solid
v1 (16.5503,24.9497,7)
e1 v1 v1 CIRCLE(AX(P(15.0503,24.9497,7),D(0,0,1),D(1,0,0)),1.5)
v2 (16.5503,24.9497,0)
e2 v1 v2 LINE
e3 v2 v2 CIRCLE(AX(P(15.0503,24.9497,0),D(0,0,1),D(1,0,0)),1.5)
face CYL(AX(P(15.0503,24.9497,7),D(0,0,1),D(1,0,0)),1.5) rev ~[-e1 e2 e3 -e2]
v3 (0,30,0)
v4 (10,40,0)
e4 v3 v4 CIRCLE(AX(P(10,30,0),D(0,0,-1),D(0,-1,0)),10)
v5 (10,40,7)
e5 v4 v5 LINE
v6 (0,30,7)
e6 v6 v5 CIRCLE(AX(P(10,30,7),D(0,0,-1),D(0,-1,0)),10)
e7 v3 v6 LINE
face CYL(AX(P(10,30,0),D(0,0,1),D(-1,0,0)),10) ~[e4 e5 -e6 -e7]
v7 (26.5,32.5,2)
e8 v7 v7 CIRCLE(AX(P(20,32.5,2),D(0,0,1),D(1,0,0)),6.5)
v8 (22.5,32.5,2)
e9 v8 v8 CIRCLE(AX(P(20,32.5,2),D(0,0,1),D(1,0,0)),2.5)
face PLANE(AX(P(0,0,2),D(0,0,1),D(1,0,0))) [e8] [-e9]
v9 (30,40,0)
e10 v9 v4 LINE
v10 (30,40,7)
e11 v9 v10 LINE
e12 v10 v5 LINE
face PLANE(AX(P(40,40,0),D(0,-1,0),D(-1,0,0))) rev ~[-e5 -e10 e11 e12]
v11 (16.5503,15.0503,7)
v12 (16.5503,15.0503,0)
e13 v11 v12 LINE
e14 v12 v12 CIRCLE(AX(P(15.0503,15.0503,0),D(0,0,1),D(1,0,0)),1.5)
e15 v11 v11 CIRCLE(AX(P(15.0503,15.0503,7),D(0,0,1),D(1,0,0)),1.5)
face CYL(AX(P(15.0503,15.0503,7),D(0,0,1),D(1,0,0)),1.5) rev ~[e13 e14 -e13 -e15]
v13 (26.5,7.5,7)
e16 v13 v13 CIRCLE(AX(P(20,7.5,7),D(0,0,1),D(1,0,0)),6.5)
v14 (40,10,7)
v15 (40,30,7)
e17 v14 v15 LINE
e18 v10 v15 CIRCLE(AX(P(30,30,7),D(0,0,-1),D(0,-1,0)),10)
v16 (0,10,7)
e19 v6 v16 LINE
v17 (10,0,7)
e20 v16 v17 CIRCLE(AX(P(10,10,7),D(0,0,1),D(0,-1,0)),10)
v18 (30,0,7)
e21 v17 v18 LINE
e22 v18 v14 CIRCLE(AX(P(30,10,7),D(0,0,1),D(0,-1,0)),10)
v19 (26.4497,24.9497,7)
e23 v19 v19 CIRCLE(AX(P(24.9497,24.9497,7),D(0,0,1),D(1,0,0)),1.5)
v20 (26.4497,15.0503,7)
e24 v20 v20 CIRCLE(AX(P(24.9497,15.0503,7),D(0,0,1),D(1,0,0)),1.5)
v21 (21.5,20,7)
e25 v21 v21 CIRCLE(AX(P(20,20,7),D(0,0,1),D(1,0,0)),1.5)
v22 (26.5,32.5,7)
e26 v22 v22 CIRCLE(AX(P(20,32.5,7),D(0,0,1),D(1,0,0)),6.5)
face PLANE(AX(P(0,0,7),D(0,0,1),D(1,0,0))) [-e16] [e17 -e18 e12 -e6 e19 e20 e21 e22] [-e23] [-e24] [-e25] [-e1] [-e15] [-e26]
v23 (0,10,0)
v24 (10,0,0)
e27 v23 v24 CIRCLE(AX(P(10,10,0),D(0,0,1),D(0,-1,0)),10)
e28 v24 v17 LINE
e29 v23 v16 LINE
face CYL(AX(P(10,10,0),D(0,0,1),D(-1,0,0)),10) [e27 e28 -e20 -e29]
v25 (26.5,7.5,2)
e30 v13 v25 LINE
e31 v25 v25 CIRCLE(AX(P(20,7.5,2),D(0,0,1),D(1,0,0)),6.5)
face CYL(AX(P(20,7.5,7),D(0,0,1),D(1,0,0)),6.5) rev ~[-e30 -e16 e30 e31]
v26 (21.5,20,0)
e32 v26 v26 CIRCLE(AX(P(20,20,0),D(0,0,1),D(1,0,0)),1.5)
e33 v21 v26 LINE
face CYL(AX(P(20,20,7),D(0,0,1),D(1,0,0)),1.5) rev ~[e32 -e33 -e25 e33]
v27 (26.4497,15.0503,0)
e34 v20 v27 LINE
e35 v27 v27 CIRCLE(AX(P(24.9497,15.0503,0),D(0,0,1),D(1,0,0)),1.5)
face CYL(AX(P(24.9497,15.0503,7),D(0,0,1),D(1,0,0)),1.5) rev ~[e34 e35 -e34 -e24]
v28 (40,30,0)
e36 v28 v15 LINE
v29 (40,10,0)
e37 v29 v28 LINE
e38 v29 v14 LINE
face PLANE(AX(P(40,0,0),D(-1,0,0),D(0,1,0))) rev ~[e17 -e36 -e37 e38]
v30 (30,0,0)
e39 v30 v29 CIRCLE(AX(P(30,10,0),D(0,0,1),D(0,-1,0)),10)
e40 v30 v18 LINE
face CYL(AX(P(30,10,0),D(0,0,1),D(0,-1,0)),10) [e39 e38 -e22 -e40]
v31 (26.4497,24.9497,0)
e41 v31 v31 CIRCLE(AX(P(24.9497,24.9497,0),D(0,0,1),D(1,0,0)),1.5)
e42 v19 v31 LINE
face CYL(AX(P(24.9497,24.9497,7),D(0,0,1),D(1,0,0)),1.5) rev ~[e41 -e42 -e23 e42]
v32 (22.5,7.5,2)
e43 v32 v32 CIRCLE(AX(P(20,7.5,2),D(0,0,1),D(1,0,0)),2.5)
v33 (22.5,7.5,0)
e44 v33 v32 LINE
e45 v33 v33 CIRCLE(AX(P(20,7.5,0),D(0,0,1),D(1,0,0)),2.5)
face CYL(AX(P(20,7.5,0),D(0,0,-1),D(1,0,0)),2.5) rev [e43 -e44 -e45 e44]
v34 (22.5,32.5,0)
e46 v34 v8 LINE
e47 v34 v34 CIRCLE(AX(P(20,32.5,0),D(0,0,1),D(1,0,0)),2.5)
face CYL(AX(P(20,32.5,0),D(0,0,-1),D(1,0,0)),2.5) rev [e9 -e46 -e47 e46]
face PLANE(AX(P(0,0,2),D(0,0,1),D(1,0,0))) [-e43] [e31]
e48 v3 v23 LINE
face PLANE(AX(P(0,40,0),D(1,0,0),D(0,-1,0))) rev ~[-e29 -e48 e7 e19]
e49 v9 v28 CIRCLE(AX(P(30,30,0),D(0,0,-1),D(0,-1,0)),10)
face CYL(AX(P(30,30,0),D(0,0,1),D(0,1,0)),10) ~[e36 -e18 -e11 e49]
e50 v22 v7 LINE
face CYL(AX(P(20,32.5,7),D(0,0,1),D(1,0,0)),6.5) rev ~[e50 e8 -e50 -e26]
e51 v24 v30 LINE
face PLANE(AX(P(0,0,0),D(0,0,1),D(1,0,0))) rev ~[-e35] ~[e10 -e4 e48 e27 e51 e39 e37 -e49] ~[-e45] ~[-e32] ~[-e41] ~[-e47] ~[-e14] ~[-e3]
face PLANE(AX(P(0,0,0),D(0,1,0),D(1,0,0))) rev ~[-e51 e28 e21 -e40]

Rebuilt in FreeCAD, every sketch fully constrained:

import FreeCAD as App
import Part
import Sketcher
Q = App.Units.Quantity


def edges_at(feature, points):
    """Names of the edges that pass closest to the given points."""
    edges = feature.Shape.Edges
    near = lambda p: min(range(len(edges)), key=lambda i: edges[i].distToShape(Part.Vertex(*p))[0])
    return sorted({f"Edge{near(p) + 1}" for p in points})


def add_polygon(sketch, points):
    """Adds a closed chain of lines whose ends are joined by coincident constraints."""
    first, n = sketch.GeometryCount, len(points)
    for a, b in zip(points, points[1:] + points[:1]):
        sketch.addGeometry(Part.LineSegment(App.Vector(*a, 0), App.Vector(*b, 0)), False)
    for i in range(n):
        sketch.addConstraint(Sketcher.Constraint("Coincident", first + i, 2, first + (i + 1) % n, 1))

doc = App.newDocument("Part")
body = doc.addObject("PartDesign::Body", "Body")

# Sketch on XY plane
sketch1 = body.newObject("Sketcher::SketchObject", "Sketch")
sketch1.AttachmentSupport = (doc.getObject("XY_Plane"), [""])
sketch1.MapMode = "FlatFace"
add_polygon(sketch1, [(0, 40), (0, 0), (40, 0), (40, 40)])  # lines 0-3
sketch1.addGeometry(Part.Circle(App.Vector(20, 7.5, 0), App.Vector(0, 0, 1), 2.5), False)  # 4
sketch1.addGeometry(Part.Circle(App.Vector(20, 32.5, 0), App.Vector(0, 0, 1), 2.5), False)  # 5
sketch1.addConstraint(Sketcher.Constraint("Vertical", 0))
sketch1.addConstraint(Sketcher.Constraint("Horizontal", 1))
sketch1.addConstraint(Sketcher.Constraint("Vertical", 2))
sketch1.addConstraint(Sketcher.Constraint("Horizontal", 3))
sketch1.addConstraint(Sketcher.Constraint("Coincident", 0, 2, -1, 1))
sketch1.addConstraint(Sketcher.Constraint("Equal", 4, 5))
sketch1.addConstraint(Sketcher.Constraint("Vertical", 4, 3, 5, 3))
sketch1.addConstraint(Sketcher.Constraint("Equal", 3, 0))
sketch1.addConstraint(Sketcher.Constraint("Diameter", 4, Q("5 mm")))
sketch1.addConstraint(Sketcher.Constraint("DistanceX", 1, 1, 1, 2, Q("40 mm")))
sketch1.addConstraint(Sketcher.Constraint("DistanceY", 4, 3, 5, 3, Q("25 mm")))
sketch1.addConstraint(Sketcher.Constraint("DistanceX", -1, 1, 4, 3, Q("20 mm")))
sketch1.addConstraint(Sketcher.Constraint("DistanceY", -1, 1, 4, 3, Q("7.5 mm")))
pad1 = body.newObject("PartDesign::Pad", "Pad")
pad1.Profile = sketch1
pad1.Length = 7

# Sketch on XY plane
sketch2 = body.newObject("Sketcher::SketchObject", "Sketch001")
sketch2.AttachmentSupport = (doc.getObject("XY_Plane"), [""])
sketch2.MapMode = "FlatFace"
sketch2.AttachmentOffset = App.Placement(App.Vector(0, 0, 7), App.Rotation())
sketch2.addGeometry(Part.Circle(App.Vector(20, 32.5, 0), App.Vector(0, 0, 1), 6.5), False)
sketch2.addGeometry(Part.Circle(App.Vector(20, 32.5, 0), App.Vector(0, 0, 1), 2.5), False)
sketch2.addGeometry(Part.Circle(App.Vector(20, 7.5, 0), App.Vector(0, 0, 1), 6.5), False)
sketch2.addGeometry(Part.Circle(App.Vector(20, 7.5, 0), App.Vector(0, 0, 1), 2.5), False)
sketch2.addConstraint(Sketcher.Constraint("Coincident", 1, 3, 0, 3))
sketch2.addConstraint(Sketcher.Constraint("Coincident", 3, 3, 2, 3))
sketch2.addConstraint(Sketcher.Constraint("Equal", 0, 2))
sketch2.addConstraint(Sketcher.Constraint("Equal", 1, 3))
sketch2.addConstraint(Sketcher.Constraint("Vertical", 1, 3, 2, 3))
sketch2.addConstraint(Sketcher.Constraint("Diameter", 0, Q("13 mm")))
sketch2.addConstraint(Sketcher.Constraint("Diameter", 1, Q("5 mm")))
sketch2.addConstraint(Sketcher.Constraint("DistanceX", -1, 1, 0, 3, Q("20 mm")))
sketch2.addConstraint(Sketcher.Constraint("DistanceY", 2, 3, 0, 3, Q("25 mm")))
sketch2.addConstraint(Sketcher.Constraint("DistanceY", -1, 1, 0, 3, Q("32.5 mm")))
pocket1 = body.newObject("PartDesign::Pocket", "Pocket")
pocket1.Profile = sketch2
pocket1.Length = 5

# Sketch on XY plane
sketch3 = body.newObject("Sketcher::SketchObject", "Sketch002")
sketch3.AttachmentSupport = (doc.getObject("XY_Plane"), [""])
sketch3.MapMode = "FlatFace"
sketch3.AttachmentOffset = App.Placement(App.Vector(0, 0, 7), App.Rotation())
sketch3.addGeometry(Part.Circle(App.Vector(20, 20, 0), App.Vector(0, 0, 1), 1.5), False)
sketch3.addGeometry(Part.Circle(App.Vector(24.9, 24.9, 0), App.Vector(0, 0, 1), 1.5), False)
sketch3.addGeometry(Part.Circle(App.Vector(15.1, 24.9, 0), App.Vector(0, 0, 1), 1.5), False)
sketch3.addGeometry(Part.Circle(App.Vector(15.1, 15.1, 0), App.Vector(0, 0, 1), 1.5), False)
sketch3.addGeometry(Part.Circle(App.Vector(24.9, 15.1, 0), App.Vector(0, 0, 1), 1.5), False)
sketch3.addConstraint(Sketcher.Constraint("Equal", 0, 1))
sketch3.addConstraint(Sketcher.Constraint("Equal", 1, 2))
sketch3.addConstraint(Sketcher.Constraint("Equal", 2, 3))
sketch3.addConstraint(Sketcher.Constraint("Equal", 3, 4))
sketch3.addConstraint(Sketcher.Constraint("Horizontal", 1, 3, 2, 3))
sketch3.addConstraint(Sketcher.Constraint("Horizontal", 3, 3, 4, 3))
sketch3.addConstraint(Sketcher.Constraint("Vertical", 2, 3, 3, 3))
sketch3.addConstraint(Sketcher.Constraint("Vertical", 1, 3, 4, 3))
sketch3.addConstraint(Sketcher.Constraint("Diameter", 0, Q("3 mm")))
sketch3.addConstraint(Sketcher.Constraint("DistanceX", -1, 1, 0, 3, Q("20 mm")))
sketch3.addConstraint(Sketcher.Constraint("DistanceY", -1, 1, 0, 3, Q("20 mm")))
sketch3.addConstraint(Sketcher.Constraint("DistanceX", -1, 1, 1, 3, Q("24.9497 mm")))
sketch3.addConstraint(Sketcher.Constraint("DistanceY", -1, 1, 1, 3, Q("24.9497 mm")))
sketch3.addConstraint(Sketcher.Constraint("DistanceX", -1, 1, 2, 3, Q("15.0503 mm")))
sketch3.addConstraint(Sketcher.Constraint("DistanceY", -1, 1, 3, 3, Q("15.0503 mm")))
pocket2 = body.newObject("PartDesign::Pocket", "Pocket001")
pocket2.Profile = sketch3
pocket2.Type = "ThroughAll"
doc.recompute()

fillet = body.newObject("PartDesign::Fillet", "Fillet")
fillet.Base = (pocket2, edges_at(pocket2, [
    (40, 40, 3.5),
    (40, 0, 3.5),
    (0, 40, 3.5),
    (0, 0, 3.5),
]))
fillet.Radius = 10

doc.recompute()
